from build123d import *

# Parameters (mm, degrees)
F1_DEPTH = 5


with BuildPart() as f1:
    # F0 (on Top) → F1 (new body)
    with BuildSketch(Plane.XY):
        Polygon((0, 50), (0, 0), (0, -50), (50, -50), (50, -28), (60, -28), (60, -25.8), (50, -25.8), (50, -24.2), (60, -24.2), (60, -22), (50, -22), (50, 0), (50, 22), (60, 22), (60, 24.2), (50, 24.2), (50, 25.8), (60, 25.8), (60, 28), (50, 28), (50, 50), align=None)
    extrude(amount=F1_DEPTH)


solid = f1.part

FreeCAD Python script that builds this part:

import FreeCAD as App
import Part
import Sketcher

V = App.Vector

doc = App.newDocument("Part")
body = doc.addObject("PartDesign::Body", "Body")

# Sketch on XY plane
sketch1 = body.newObject("Sketcher::SketchObject", "Sketch")
sketch1.AttachmentSupport = (doc.getObject("XY_Plane"), [""])
sketch1.MapMode = "FlatFace"
sketch1.addGeometry(Part.LineSegment(V(0, 50, 0), V(0, -50, 0)), False)
sketch1.addGeometry(Part.LineSegment(V(0, -50, 0), V(50, -50, 0)), False)
sketch1.addGeometry(Part.LineSegment(V(50, -50, 0), V(50, -28, 0)), False)
sketch1.addGeometry(Part.LineSegment(V(50, -28, 0), V(60, -28, 0)), False)
sketch1.addGeometry(Part.LineSegment(V(60, -28, 0), V(60, -25.8, 0)), False)
sketch1.addGeometry(Part.LineSegment(V(60, -25.8, 0), V(50, -25.8, 0)), False)
sketch1.addGeometry(Part.LineSegment(V(50, -25.8, 0), V(50, -24.2, 0)), False)
sketch1.addGeometry(Part.LineSegment(V(50, -24.2, 0), V(60, -24.2, 0)), False)
sketch1.addGeometry(Part.LineSegment(V(60, -24.2, 0), V(60, -22, 0)), False)
sketch1.addGeometry(Part.LineSegment(V(60, -22, 0), V(50, -22, 0)), False)
sketch1.addGeometry(Part.LineSegment(V(50, -22, 0), V(50, 22, 0)), False)
sketch1.addGeometry(Part.LineSegment(V(50, 22, 0), V(60, 22, 0)), False)
sketch1.addGeometry(Part.LineSegment(V(60, 22, 0), V(60, 24.2, 0)), False)
sketch1.addGeometry(Part.LineSegment(V(60, 24.2, 0), V(50, 24.2, 0)), False)
sketch1.addGeometry(Part.LineSegment(V(50, 24.2, 0), V(50, 25.8, 0)), False)
sketch1.addGeometry(Part.LineSegment(V(50, 25.8, 0), V(60, 25.8, 0)), False)
sketch1.addGeometry(Part.LineSegment(V(60, 25.8, 0), V(60, 28, 0)), False)
sketch1.addGeometry(Part.LineSegment(V(60, 28, 0), V(50, 28, 0)), False)
sketch1.addGeometry(Part.LineSegment(V(50, 28, 0), V(50, 50, 0)), False)
sketch1.addGeometry(Part.LineSegment(V(50, 50, 0), V(0, 50, 0)), False)
sketch1.addConstraint(Sketcher.Constraint("Coincident", 0, 2, 1, 1))
sketch1.addConstraint(Sketcher.Constraint("Coincident", 1, 2, 2, 1))
sketch1.addConstraint(Sketcher.Constraint("Coincident", 2, 2, 3, 1))
sketch1.addConstraint(Sketcher.Constraint("Coincident", 3, 2, 4, 1))
sketch1.addConstraint(Sketcher.Constraint("Coincident", 4, 2, 5, 1))
sketch1.addConstraint(Sketcher.Constraint("Coincident", 5, 2, 6, 1))
sketch1.addConstraint(Sketcher.Constraint("Coincident", 6, 2, 7, 1))
sketch1.addConstraint(Sketcher.Constraint("Coincident", 7, 2, 8, 1))
sketch1.addConstraint(Sketcher.Constraint("Coincident", 8, 2, 9, 1))
sketch1.addConstraint(Sketcher.Constraint("Coincident", 9, 2, 10, 1))
sketch1.addConstraint(Sketcher.Constraint("Coincident", 10, 2, 11, 1))
sketch1.addConstraint(Sketcher.Constraint("Coincident", 11, 2, 12, 1))
sketch1.addConstraint(Sketcher.Constraint("Coincident", 12, 2, 13, 1))
sketch1.addConstraint(Sketcher.Constraint("Coincident", 13, 2, 14, 1))
sketch1.addConstraint(Sketcher.Constraint("Coincident", 14, 2, 15, 1))
sketch1.addConstraint(Sketcher.Constraint("Coincident", 15, 2, 16, 1))
sketch1.addConstraint(Sketcher.Constraint("Coincident", 16, 2, 17, 1))
sketch1.addConstraint(Sketcher.Constraint("Coincident", 17, 2, 18, 1))
sketch1.addConstraint(Sketcher.Constraint("Coincident", 18, 2, 19, 1))
sketch1.addConstraint(Sketcher.Constraint("Coincident", 19, 2, 0, 1))
sketch1.addConstraint(Sketcher.Constraint("Vertical", 0))
sketch1.addConstraint(Sketcher.Constraint("Horizontal", 1))
sketch1.addConstraint(Sketcher.Constraint("Vertical", 2))
sketch1.addConstraint(Sketcher.Constraint("Horizontal", 3))
sketch1.addConstraint(Sketcher.Constraint("Vertical", 4))
sketch1.addConstraint(Sketcher.Constraint("Horizontal", 5))
sketch1.addConstraint(Sketcher.Constraint("Vertical", 6))
sketch1.addConstraint(Sketcher.Constraint("Horizontal", 7))
sketch1.addConstraint(Sketcher.Constraint("Vertical", 8))
sketch1.addConstraint(Sketcher.Constraint("Horizontal", 9))
sketch1.addConstraint(Sketcher.Constraint("Vertical", 10))
sketch1.addConstraint(Sketcher.Constraint("Horizontal", 11))
sketch1.addConstraint(Sketcher.Constraint("Vertical", 12))
sketch1.addConstraint(Sketcher.Constraint("Horizontal", 13))
sketch1.addConstraint(Sketcher.Constraint("Vertical", 14))
sketch1.addConstraint(Sketcher.Constraint("Horizontal", 15))
sketch1.addConstraint(Sketcher.Constraint("Vertical", 16))
sketch1.addConstraint(Sketcher.Constraint("Horizontal", 17))
sketch1.addConstraint(Sketcher.Constraint("Vertical", 18))
sketch1.addConstraint(Sketcher.Constraint("Horizontal", 19))
sketch1.addConstraint(Sketcher.Constraint("Symmetric", 0, 2, 19, 2, -1, 1))
sketch1.addConstraint(Sketcher.Constraint("Symmetric", 8, 2, 11, 2, -1))
sketch1.addConstraint(Sketcher.Constraint("Symmetric", 6, 2, 13, 2, -1))
sketch1.addConstraint(Sketcher.Constraint("Symmetric", 4, 2, 15, 2, -1))
sketch1.addConstraint(Sketcher.Constraint("Symmetric", 2, 2, 17, 2, -1))
sketch1.addConstraint(Sketcher.Constraint("Vertical", 2, 2, 5, 2))
sketch1.addConstraint(Sketcher.Constraint("Vertical", 4, 2, 7, 2))
sketch1.addConstraint(Sketcher.Constraint("Vertical", 6, 2, 9, 2))
sketch1.addConstraint(Sketcher.Constraint("Equal", 4, 8))
sketch1.addConstraint(Sketcher.Constraint("DistanceX", 1, 1, 1, 2, 50.0))
sketch1.addConstraint(Sketcher.Constraint("DistanceX", 3, 1, 3, 2, 10.0))
sketch1.addConstraint(Sketcher.Constraint("DistanceY", 0, 2, 0, 1, 100.0))
sketch1.addConstraint(Sketcher.Constraint("DistanceY", 2, 1, 2, 2, 22.0))
sketch1.addConstraint(Sketcher.Constraint("DistanceY", 10, 1, 10, 2, 44.0))
sketch1.addConstraint(Sketcher.Constraint("DistanceY", 4, 1, 4, 2, 2.2))
pad1 = body.newObject("PartDesign::Pad", "Pad")
pad1.Profile = sketch1
pad1.Length = 5

doc.recompute()
